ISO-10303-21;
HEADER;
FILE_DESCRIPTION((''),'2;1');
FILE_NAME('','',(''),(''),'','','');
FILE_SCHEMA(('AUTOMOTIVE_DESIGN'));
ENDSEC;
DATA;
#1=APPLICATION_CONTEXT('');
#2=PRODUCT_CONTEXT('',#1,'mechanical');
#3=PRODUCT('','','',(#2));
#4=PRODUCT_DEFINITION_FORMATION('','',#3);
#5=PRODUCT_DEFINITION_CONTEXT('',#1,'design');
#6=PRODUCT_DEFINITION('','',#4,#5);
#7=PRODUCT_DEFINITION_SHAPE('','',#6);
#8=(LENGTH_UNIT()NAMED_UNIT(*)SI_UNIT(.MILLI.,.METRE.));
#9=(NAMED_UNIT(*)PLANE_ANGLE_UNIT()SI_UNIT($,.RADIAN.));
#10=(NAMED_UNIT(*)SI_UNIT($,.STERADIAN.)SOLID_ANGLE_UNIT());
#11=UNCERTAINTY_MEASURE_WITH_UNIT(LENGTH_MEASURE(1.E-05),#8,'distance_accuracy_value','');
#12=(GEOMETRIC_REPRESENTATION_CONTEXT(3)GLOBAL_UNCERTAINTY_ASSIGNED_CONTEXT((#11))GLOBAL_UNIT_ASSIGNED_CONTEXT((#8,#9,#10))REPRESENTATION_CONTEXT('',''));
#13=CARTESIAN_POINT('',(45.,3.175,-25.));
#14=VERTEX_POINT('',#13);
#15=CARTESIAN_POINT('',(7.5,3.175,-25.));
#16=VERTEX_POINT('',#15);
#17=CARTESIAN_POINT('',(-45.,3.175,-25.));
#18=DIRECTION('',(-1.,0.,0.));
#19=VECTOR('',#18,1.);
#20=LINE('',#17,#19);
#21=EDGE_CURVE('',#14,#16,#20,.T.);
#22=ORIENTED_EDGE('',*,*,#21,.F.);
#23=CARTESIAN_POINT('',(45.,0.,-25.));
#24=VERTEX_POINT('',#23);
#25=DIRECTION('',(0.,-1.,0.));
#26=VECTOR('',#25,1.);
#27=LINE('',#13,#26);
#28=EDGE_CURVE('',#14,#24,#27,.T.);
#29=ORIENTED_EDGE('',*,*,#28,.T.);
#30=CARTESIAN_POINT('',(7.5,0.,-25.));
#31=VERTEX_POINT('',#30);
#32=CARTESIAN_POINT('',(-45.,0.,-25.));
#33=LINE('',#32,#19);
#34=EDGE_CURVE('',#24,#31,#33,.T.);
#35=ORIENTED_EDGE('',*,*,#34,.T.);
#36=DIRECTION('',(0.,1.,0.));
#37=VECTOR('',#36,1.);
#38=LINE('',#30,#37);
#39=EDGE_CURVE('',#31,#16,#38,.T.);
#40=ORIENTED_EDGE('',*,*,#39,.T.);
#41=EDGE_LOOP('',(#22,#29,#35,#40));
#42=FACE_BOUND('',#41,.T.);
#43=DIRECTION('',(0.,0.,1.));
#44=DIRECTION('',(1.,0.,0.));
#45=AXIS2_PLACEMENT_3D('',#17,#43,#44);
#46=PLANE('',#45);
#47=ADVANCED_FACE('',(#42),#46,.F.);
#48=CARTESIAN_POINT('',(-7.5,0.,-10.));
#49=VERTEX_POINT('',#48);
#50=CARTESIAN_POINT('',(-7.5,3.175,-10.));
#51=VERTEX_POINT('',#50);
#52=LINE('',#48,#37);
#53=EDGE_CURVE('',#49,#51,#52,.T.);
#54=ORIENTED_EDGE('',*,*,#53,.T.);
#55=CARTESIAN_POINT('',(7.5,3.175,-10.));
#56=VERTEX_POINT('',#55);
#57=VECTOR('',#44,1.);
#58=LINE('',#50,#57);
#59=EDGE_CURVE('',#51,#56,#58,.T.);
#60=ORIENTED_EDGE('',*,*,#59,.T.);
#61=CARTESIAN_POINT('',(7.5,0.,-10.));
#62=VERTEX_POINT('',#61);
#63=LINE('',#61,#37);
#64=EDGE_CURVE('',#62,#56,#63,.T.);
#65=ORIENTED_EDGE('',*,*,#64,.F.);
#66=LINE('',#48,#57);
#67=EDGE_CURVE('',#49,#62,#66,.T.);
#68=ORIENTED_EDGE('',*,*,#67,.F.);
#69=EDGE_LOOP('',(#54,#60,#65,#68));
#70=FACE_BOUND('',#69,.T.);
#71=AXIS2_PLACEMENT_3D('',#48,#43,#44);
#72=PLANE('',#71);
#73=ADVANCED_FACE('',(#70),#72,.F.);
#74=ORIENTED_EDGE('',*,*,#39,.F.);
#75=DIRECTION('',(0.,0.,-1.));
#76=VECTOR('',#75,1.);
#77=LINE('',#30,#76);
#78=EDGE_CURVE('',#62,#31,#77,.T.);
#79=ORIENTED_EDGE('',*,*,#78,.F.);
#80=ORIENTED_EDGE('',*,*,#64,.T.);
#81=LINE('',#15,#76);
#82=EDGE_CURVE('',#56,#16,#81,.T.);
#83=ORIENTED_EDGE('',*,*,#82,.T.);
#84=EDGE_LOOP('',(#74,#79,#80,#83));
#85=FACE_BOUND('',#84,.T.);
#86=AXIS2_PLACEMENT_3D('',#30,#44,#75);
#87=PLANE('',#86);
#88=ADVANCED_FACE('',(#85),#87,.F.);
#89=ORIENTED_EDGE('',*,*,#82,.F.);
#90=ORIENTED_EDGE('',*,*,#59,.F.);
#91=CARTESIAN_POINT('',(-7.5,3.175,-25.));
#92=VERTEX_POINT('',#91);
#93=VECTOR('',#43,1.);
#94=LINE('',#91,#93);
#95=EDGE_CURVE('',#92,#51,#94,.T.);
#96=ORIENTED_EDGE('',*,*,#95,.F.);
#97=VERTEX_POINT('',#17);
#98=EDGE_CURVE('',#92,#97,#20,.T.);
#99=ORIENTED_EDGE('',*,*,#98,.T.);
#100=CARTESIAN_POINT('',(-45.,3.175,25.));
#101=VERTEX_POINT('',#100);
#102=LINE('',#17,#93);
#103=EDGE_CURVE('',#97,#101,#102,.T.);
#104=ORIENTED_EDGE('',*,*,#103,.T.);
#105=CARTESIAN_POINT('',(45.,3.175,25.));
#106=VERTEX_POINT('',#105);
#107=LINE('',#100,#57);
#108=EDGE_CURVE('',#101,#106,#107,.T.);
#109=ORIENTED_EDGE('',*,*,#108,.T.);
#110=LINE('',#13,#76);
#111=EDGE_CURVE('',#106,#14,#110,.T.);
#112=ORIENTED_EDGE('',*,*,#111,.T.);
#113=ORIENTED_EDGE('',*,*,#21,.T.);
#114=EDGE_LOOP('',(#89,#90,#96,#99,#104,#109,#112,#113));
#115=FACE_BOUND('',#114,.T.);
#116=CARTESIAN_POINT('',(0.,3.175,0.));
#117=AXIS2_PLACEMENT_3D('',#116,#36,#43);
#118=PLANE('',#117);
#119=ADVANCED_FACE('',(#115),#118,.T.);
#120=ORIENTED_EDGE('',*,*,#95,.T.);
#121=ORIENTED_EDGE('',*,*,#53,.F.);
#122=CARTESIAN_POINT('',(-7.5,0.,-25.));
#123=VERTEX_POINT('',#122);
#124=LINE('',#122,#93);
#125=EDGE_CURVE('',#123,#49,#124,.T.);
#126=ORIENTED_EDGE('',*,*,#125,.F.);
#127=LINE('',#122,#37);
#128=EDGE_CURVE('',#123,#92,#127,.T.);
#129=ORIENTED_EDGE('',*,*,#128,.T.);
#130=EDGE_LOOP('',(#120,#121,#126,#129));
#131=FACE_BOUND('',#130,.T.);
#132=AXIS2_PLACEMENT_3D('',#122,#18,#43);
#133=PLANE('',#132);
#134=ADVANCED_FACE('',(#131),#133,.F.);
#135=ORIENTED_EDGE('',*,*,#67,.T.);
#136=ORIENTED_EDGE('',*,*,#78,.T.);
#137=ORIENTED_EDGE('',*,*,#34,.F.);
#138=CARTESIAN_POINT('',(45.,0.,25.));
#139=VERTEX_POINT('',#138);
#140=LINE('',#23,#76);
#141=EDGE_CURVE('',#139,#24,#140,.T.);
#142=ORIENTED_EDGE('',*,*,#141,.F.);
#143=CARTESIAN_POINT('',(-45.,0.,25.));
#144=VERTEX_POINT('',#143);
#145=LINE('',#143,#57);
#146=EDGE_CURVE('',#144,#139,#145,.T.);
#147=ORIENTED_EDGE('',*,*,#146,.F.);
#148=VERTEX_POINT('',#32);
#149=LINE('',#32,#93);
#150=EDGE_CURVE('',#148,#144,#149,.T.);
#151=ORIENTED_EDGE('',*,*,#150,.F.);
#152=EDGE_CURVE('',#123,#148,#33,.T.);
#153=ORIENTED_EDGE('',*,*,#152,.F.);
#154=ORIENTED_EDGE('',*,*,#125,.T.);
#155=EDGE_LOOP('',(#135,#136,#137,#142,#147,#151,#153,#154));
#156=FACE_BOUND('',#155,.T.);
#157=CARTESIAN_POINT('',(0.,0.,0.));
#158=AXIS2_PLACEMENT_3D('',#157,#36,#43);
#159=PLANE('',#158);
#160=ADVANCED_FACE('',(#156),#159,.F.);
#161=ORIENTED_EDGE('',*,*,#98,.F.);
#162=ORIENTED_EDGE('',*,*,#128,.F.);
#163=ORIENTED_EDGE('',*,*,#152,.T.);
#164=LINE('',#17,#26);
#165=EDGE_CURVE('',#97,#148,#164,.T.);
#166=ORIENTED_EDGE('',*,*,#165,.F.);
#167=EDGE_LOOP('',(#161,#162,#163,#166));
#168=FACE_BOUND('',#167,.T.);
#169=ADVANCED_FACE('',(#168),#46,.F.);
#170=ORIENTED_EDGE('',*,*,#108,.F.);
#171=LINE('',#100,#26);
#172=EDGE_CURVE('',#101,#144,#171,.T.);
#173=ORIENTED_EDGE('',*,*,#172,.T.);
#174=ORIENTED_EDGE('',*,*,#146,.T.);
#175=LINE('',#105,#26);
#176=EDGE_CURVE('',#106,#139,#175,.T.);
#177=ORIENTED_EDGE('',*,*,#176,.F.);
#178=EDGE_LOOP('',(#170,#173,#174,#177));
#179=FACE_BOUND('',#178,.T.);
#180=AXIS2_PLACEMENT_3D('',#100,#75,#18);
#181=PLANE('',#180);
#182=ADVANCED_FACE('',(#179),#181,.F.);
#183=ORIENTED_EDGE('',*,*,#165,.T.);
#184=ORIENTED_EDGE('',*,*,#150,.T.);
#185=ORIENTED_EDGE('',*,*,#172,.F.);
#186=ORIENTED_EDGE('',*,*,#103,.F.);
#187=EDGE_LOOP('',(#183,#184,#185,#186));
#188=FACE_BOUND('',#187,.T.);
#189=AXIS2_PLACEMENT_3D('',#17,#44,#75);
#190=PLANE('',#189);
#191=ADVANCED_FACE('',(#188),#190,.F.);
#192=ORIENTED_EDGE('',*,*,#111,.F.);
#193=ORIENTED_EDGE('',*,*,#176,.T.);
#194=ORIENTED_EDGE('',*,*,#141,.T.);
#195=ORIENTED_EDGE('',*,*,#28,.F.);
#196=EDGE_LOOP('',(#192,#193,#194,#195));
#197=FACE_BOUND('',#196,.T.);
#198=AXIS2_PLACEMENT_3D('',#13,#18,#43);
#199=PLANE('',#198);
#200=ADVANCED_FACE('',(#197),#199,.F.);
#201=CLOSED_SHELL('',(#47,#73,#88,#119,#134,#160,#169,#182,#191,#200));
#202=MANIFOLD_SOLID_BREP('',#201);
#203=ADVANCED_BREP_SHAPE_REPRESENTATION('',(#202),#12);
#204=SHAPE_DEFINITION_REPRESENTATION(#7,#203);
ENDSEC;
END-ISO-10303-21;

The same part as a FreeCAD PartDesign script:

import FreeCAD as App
import Part
import Sketcher
Q = App.Units.Quantity

doc = App.newDocument("Part")
body = doc.addObject("PartDesign::Body", "Body")

sketch1 = doc.addObject("Sketcher::SketchObject", "Sketch")
body.addObject(sketch1)
sketch1.AttachmentSupport = (doc.XZ_Plane, [""])
sketch1.MapMode = "FlatFace"
sketch1.addGeometry([
    Part.LineSegment(App.Vector(-45, -25, 0), App.Vector(-45, 25, 0)),
    Part.LineSegment(App.Vector(-45, 25, 0), App.Vector(45, 25, 0)),
    Part.LineSegment(App.Vector(45, 25, 0), App.Vector(45, -25, 0)),
    Part.LineSegment(App.Vector(45, -25, 0), App.Vector(-45, -25, 0)),
], False)
sketch1.addConstraint([
    Sketcher.Constraint("Coincident", 0, 2, 1, 1),
    Sketcher.Constraint("Coincident", 1, 2, 2, 1),
    Sketcher.Constraint("Coincident", 2, 2, 3, 1),
    Sketcher.Constraint("Coincident", 3, 2, 0, 1),
    Sketcher.Constraint("Vertical", 0),
    Sketcher.Constraint("Horizontal", 1),
    Sketcher.Constraint("Vertical", 2),
    Sketcher.Constraint("Horizontal", 3),
    Sketcher.Constraint("Symmetric", 0, 2, 2, 2, -1, 1),
    Sketcher.Constraint("DistanceX", 1, 1, 1, 2, Q("90 mm")),
    Sketcher.Constraint("DistanceY", 0, 1, 0, 2, Q("50 mm")),
])
pad1 = doc.addObject("PartDesign::Pad", "Pad")
body.addObject(pad1)
pad1.Profile = sketch1
pad1.Length = 3.175
pad1.Reversed = True

sketch2 = doc.addObject("Sketcher::SketchObject", "Sketch001")
body.addObject(sketch2)
sketch2.AttachmentSupport = (doc.XZ_Plane, [""])
sketch2.MapMode = "FlatFace"
sketch2.AttachmentOffset = App.Placement(App.Vector(0, 0, -3.175), App.Rotation())
sketch2.addGeometry([
    Part.LineSegment(App.Vector(-8, -25, 0), App.Vector(-8, -10, 0)),
    Part.LineSegment(App.Vector(-8, -10, 0), App.Vector(8, -10, 0)),
    Part.LineSegment(App.Vector(8, -10, 0), App.Vector(8, -25, 0)),
    Part.LineSegment(App.Vector(8, -25, 0), App.Vector(-8, -25, 0)),
], False)
sketch2.addConstraint([
    Sketcher.Constraint("Coincident", 0, 2, 1, 1),
    Sketcher.Constraint("Coincident", 1, 2, 2, 1),
    Sketcher.Constraint("Coincident", 2, 2, 3, 1),
    Sketcher.Constraint("Coincident", 3, 2, 0, 1),
    Sketcher.Constraint("Vertical", 0),
    Sketcher.Constraint("Horizontal", 1),
    Sketcher.Constraint("Vertical", 2),
    Sketcher.Constraint("Horizontal", 3),
    Sketcher.Constraint("Equal", 3, 0),
    Sketcher.Constraint("DistanceX", 1, 1, 1, 2, Q("15 mm")),
    Sketcher.Constraint("DistanceY", 0, 2, -1, 1, Q("10 mm")),
    Sketcher.Constraint("DistanceX", 0, 2, -1, 1, Q("7.5 mm")),
])
pocket1 = doc.addObject("PartDesign::Pocket", "Pocket")
body.addObject(pocket1)
pocket1.Profile = sketch2
pocket1.Type = "ThroughAll"
pocket1.Reversed = True

doc.recompute()
